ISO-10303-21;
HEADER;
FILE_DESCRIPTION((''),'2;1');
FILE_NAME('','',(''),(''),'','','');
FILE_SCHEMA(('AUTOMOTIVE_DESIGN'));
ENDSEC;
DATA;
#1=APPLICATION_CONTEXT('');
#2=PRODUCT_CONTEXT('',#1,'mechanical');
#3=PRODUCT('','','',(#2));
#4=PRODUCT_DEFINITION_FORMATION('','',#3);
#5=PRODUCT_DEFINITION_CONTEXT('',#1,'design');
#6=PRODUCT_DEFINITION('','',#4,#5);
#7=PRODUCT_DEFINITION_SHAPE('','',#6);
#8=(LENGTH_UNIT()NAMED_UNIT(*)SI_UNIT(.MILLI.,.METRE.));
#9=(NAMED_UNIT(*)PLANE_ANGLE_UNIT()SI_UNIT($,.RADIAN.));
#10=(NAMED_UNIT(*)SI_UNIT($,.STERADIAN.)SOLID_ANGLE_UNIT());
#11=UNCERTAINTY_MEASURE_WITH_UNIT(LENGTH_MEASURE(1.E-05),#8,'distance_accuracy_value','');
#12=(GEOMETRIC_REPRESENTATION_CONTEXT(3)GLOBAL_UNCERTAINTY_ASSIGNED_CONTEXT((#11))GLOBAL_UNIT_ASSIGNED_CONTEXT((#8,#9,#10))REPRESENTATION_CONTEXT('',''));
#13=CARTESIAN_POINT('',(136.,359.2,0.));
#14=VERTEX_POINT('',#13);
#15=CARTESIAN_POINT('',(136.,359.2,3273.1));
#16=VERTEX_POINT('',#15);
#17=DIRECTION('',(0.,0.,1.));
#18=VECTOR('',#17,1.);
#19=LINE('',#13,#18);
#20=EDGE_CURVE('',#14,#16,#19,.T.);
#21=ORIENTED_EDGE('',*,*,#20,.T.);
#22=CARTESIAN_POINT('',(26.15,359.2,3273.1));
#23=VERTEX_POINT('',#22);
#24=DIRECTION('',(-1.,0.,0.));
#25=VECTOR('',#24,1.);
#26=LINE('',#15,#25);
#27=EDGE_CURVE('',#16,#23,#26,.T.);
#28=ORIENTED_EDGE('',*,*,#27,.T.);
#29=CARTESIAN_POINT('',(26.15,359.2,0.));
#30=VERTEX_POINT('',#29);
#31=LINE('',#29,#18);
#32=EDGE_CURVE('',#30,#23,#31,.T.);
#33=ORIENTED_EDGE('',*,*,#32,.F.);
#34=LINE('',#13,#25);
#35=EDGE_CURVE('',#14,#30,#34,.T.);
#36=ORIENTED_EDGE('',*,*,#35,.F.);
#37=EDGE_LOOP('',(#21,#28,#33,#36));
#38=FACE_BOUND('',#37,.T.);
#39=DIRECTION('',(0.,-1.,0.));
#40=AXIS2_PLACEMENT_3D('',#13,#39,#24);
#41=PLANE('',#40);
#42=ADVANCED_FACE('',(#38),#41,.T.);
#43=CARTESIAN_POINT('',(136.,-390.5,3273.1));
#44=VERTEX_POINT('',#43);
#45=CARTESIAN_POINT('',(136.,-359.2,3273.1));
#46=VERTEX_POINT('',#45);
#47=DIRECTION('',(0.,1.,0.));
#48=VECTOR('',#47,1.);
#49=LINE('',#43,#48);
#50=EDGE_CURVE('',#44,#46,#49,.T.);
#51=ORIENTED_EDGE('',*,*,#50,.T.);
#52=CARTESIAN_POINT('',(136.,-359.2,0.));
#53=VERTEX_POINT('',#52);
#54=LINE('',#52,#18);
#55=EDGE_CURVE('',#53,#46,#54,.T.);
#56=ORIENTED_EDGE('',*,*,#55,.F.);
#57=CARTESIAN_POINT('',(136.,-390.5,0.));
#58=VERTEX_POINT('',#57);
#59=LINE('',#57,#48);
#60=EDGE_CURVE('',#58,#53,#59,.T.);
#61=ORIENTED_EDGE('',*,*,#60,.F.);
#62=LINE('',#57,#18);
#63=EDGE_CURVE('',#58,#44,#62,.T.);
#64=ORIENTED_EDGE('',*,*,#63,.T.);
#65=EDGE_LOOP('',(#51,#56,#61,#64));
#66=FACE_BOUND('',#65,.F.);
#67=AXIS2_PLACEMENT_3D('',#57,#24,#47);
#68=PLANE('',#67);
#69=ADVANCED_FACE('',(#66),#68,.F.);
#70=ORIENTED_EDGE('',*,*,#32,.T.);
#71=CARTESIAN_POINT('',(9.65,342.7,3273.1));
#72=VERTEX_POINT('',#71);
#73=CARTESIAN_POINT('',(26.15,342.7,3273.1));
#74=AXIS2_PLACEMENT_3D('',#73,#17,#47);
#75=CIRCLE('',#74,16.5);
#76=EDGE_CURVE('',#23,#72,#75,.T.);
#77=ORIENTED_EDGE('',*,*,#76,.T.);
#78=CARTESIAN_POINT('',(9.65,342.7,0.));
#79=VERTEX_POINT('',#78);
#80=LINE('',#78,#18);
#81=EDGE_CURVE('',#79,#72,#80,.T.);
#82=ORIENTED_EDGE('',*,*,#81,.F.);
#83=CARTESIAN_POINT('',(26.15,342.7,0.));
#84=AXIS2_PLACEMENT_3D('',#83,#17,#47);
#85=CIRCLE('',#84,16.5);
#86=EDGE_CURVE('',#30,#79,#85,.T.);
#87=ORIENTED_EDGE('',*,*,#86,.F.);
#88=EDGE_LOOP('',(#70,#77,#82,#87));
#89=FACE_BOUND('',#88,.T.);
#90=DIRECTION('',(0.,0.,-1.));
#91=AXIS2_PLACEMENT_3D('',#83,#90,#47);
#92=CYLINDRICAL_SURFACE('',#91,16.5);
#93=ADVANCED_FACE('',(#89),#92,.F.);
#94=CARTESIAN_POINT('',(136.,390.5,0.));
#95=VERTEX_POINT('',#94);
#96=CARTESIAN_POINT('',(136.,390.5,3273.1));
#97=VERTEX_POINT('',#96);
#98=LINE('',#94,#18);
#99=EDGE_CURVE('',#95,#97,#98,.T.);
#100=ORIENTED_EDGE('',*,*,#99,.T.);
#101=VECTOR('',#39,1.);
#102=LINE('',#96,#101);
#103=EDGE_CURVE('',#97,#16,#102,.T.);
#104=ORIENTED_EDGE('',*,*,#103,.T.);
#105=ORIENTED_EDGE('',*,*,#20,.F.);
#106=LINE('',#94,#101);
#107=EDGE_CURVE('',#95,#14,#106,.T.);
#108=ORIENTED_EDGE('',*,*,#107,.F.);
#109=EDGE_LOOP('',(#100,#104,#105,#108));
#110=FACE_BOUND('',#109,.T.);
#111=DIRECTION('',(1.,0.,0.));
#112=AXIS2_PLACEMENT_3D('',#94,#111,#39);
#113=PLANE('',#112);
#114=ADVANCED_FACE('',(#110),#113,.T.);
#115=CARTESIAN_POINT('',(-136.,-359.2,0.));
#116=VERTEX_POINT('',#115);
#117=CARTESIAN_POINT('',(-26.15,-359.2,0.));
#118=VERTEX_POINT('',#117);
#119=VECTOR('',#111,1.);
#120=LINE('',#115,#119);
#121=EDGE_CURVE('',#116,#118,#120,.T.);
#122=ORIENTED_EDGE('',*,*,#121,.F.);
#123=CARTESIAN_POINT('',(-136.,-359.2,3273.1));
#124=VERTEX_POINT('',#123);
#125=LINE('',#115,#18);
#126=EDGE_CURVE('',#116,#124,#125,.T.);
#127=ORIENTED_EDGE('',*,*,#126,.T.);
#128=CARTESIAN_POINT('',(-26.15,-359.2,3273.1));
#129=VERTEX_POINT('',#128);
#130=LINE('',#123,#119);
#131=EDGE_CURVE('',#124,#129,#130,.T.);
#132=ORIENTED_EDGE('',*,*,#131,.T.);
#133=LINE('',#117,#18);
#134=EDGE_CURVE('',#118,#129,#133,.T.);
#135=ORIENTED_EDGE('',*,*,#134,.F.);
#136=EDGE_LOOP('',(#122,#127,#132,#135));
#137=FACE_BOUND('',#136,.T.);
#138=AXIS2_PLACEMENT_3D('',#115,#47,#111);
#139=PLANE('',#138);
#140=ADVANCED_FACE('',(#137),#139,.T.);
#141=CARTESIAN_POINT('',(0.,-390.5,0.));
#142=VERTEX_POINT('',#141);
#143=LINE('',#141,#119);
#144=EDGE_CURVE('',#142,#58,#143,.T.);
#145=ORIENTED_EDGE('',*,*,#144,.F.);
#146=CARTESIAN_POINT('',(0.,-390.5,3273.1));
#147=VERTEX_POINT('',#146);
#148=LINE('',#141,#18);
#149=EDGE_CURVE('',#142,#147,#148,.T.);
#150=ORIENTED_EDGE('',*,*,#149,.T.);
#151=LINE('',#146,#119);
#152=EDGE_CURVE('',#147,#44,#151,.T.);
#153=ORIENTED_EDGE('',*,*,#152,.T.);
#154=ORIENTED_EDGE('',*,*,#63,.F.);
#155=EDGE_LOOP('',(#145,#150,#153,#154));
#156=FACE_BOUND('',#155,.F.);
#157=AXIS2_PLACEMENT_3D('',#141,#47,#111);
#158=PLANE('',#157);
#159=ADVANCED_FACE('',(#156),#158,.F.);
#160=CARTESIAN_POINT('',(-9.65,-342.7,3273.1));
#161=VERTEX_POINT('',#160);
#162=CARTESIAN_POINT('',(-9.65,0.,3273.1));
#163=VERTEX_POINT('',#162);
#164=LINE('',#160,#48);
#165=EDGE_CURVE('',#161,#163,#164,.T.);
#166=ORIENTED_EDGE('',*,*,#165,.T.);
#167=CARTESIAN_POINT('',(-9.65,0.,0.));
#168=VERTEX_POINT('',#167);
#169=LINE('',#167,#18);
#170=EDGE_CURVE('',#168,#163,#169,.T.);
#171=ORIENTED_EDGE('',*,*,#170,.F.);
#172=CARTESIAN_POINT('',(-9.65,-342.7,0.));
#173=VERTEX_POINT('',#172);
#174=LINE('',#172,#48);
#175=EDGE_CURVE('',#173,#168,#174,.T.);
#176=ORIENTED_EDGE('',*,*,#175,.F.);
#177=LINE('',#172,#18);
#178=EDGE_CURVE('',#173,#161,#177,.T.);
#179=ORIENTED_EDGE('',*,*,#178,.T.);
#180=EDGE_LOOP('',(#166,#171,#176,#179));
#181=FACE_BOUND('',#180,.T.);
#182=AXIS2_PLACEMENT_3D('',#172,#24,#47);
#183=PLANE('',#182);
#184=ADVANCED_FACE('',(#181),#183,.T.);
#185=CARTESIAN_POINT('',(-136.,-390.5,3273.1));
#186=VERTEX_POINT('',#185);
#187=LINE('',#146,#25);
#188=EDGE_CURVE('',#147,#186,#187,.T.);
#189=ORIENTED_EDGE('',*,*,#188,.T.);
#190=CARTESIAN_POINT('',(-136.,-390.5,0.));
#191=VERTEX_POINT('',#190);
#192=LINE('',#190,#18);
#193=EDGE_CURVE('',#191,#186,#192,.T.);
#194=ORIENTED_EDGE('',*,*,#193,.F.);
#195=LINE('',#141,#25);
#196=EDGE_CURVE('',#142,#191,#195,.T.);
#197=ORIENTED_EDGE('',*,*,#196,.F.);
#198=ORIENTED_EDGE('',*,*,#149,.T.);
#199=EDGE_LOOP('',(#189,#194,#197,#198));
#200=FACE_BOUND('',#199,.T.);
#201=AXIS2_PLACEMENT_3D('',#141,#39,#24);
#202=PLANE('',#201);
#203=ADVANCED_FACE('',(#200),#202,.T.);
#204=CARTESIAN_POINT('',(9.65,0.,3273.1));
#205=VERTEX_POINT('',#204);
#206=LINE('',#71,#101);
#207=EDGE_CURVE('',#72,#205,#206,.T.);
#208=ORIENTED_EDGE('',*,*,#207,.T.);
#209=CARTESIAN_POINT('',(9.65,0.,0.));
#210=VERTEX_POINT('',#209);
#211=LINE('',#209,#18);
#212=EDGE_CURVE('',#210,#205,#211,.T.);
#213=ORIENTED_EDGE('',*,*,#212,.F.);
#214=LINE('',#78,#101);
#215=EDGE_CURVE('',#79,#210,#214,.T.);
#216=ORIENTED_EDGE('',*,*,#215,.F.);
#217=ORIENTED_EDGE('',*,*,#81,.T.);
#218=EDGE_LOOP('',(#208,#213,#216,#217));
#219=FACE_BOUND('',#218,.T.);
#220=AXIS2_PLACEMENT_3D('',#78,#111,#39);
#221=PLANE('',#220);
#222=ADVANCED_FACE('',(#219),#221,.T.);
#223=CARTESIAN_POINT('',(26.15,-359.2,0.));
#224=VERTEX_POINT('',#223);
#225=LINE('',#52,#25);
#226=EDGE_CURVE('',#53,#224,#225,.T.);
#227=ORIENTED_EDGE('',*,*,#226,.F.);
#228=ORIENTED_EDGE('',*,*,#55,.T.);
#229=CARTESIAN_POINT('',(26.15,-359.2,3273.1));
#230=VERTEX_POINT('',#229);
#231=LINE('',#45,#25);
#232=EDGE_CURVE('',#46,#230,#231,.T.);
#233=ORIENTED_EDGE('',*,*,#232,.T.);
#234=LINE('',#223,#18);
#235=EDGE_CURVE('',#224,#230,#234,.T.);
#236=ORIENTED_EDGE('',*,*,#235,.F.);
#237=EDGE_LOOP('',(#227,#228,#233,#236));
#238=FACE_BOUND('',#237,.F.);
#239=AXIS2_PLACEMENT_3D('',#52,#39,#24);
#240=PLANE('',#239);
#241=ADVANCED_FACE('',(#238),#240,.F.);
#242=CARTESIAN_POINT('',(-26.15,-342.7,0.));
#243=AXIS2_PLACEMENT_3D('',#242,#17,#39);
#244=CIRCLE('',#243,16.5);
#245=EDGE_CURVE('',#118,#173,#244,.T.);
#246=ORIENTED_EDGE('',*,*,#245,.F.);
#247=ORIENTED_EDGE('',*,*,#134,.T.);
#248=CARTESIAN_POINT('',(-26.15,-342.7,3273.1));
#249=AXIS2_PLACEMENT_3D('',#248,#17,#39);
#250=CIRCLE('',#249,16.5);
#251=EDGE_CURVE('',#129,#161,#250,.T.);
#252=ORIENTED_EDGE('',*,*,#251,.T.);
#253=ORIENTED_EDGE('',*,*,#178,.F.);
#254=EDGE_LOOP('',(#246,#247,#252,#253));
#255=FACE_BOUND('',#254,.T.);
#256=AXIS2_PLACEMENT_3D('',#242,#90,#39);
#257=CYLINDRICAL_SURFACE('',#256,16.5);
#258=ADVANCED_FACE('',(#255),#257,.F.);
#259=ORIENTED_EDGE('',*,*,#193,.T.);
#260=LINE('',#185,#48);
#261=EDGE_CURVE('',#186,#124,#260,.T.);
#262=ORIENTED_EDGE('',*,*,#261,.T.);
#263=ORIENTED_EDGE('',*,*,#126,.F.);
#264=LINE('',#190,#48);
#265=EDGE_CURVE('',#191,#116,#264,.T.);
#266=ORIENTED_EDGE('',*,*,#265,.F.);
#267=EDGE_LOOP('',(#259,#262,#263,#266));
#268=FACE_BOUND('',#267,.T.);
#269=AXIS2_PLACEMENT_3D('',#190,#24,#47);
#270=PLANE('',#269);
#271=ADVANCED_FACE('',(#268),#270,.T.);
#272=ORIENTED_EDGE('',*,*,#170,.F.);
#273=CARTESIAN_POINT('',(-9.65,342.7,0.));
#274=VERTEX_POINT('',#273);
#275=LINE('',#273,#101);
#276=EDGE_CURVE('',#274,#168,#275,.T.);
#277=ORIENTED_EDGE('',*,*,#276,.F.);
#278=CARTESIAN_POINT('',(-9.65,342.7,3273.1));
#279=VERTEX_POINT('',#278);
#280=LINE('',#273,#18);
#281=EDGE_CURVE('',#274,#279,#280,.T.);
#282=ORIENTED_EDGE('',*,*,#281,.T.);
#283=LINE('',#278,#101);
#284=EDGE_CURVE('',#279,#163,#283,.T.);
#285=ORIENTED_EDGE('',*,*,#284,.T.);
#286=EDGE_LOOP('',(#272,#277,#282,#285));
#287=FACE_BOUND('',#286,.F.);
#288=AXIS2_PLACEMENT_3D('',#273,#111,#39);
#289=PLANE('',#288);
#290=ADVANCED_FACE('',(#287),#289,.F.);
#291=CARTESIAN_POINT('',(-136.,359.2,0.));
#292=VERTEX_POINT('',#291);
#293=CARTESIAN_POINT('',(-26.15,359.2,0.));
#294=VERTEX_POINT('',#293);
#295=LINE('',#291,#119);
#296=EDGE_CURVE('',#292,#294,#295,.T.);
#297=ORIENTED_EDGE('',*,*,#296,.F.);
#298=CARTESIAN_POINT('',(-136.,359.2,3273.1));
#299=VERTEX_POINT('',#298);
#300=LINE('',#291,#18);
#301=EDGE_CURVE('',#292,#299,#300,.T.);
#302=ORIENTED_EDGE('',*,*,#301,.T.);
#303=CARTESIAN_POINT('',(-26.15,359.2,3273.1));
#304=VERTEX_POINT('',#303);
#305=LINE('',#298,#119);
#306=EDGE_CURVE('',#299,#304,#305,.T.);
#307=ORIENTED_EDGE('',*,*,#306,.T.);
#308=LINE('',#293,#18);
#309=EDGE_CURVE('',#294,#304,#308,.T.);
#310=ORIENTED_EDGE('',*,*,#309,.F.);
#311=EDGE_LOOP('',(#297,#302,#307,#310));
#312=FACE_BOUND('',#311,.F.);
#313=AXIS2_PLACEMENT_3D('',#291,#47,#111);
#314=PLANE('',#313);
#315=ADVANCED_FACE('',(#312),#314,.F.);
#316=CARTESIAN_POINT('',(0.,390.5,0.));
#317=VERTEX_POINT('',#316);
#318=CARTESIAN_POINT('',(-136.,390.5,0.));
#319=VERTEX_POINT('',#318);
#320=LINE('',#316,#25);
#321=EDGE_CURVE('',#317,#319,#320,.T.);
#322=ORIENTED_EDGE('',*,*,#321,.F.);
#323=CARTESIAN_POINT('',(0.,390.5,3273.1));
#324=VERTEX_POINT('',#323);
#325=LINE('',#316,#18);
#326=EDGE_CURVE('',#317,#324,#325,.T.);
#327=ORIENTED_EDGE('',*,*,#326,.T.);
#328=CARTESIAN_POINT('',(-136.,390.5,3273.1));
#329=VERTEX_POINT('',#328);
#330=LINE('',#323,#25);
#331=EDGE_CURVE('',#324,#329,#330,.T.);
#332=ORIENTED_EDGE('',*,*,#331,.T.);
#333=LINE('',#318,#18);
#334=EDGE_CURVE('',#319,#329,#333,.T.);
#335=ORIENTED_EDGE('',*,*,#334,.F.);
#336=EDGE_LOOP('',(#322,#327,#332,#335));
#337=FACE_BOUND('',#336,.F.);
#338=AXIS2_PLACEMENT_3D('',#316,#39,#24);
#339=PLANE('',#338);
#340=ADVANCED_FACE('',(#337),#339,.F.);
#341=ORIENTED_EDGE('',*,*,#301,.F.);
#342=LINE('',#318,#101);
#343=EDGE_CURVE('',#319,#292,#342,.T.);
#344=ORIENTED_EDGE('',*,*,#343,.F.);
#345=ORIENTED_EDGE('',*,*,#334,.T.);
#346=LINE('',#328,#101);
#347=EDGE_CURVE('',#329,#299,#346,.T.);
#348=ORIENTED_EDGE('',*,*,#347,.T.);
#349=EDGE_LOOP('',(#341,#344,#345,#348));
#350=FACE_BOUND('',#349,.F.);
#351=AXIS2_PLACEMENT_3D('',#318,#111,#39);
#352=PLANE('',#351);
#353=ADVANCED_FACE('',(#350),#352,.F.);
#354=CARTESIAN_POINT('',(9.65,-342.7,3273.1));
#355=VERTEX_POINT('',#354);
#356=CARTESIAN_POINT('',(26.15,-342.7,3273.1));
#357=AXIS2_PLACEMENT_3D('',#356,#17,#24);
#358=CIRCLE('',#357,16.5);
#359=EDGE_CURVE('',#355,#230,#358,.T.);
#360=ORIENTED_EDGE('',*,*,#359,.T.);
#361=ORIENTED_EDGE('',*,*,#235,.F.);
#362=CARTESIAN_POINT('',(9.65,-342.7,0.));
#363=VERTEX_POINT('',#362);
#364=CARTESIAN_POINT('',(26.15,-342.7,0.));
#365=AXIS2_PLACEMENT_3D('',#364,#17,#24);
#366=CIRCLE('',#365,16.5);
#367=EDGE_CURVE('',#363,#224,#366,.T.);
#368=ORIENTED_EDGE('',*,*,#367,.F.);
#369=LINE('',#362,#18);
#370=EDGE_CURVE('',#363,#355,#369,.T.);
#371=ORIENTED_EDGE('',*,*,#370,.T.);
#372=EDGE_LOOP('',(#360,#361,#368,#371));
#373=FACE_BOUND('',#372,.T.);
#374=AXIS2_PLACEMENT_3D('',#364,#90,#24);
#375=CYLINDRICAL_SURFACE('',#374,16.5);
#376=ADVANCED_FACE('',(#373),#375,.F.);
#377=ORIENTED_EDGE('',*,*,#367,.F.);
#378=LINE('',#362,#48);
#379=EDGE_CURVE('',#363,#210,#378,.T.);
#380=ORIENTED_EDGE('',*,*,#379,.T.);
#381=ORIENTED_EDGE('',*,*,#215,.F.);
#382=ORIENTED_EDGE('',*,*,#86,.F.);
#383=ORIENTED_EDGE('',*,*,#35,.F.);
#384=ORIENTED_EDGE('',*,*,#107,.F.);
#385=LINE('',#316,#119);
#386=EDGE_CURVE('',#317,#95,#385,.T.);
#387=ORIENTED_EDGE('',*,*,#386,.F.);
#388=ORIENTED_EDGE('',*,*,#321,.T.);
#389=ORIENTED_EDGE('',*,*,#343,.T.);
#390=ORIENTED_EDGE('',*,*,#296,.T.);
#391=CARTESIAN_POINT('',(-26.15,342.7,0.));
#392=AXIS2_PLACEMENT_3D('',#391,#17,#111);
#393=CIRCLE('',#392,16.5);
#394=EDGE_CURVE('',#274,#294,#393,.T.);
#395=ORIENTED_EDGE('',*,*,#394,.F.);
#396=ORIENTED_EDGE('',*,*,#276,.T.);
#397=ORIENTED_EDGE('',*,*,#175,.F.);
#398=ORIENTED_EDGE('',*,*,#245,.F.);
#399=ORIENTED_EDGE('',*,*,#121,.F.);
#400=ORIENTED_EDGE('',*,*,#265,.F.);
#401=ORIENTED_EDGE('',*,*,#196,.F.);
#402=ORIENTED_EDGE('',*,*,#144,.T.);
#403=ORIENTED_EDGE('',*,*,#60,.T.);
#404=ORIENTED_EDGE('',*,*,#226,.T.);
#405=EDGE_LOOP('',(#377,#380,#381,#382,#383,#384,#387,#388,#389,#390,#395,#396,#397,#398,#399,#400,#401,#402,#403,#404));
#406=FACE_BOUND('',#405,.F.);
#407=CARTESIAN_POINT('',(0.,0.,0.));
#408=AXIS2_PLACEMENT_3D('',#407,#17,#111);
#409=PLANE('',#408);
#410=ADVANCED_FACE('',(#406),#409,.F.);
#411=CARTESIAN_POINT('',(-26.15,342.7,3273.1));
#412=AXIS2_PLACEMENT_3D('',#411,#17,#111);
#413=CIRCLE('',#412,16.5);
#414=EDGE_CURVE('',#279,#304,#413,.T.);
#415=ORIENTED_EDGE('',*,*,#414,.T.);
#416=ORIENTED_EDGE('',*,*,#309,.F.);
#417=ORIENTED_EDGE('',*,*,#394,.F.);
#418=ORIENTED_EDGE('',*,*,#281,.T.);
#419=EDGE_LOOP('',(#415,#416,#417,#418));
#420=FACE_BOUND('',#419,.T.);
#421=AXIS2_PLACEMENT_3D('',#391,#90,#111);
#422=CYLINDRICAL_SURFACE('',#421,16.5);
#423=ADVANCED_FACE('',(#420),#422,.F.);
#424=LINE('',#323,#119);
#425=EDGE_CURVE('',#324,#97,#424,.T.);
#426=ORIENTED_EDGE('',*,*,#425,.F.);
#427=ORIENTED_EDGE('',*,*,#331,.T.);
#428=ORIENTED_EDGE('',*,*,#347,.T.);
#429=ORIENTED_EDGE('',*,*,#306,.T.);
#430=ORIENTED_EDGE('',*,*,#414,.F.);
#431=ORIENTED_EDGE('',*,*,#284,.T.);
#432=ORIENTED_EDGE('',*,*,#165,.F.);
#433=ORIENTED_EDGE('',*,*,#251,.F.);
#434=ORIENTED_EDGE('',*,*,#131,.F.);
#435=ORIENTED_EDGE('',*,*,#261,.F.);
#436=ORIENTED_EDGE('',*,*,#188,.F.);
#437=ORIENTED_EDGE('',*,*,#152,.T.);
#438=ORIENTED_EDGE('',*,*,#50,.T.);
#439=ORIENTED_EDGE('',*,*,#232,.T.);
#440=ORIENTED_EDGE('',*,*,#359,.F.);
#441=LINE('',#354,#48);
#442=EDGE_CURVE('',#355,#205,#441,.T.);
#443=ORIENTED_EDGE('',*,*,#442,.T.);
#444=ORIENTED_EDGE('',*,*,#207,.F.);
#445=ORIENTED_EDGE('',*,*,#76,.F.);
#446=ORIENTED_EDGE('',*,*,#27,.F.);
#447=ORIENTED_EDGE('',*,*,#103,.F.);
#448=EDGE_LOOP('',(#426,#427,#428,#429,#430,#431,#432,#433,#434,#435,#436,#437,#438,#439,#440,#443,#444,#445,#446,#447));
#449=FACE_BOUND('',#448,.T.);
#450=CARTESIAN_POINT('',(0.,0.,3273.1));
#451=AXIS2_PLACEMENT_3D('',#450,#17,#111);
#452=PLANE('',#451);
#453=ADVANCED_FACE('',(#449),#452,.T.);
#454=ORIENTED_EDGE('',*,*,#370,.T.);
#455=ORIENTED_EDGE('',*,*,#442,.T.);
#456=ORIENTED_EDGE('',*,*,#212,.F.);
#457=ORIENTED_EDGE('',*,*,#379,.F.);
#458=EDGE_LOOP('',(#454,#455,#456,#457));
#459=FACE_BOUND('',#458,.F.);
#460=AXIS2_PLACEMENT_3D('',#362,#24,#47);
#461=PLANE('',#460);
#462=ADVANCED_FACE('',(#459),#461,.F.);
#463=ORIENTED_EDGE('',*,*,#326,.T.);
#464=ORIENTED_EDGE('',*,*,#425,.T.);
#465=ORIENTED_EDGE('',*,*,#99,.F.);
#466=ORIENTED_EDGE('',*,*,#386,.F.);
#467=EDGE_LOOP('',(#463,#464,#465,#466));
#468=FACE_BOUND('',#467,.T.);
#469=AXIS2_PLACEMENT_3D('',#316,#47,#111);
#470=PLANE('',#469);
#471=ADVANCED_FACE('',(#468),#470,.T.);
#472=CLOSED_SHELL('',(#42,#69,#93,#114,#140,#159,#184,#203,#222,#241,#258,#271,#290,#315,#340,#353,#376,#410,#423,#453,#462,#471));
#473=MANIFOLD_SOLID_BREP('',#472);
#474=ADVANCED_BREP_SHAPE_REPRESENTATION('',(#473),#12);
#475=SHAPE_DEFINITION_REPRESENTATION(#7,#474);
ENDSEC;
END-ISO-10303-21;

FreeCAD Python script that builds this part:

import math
import FreeCAD as App
import Part
import Sketcher
Q = App.Units.Quantity

doc = App.newDocument("Part")
body = doc.addObject("PartDesign::Body", "Body")

# Sketch on XY plane
sketch1 = body.newObject("Sketcher::SketchObject", "Sketch")
sketch1.AttachmentSupport = (doc.getObject("XY_Plane"), [""])
sketch1.MapMode = "FlatFace"
sketch1.addGeometry([
    Part.LineSegment(App.Vector(-136, -359, 0), App.Vector(-136, -390, 0)),  # 0
    Part.LineSegment(App.Vector(-136, -390, 0), App.Vector(136, -390, 0)),  # 1
    Part.LineSegment(App.Vector(136, -390, 0), App.Vector(136, -359, 0)),  # 2
    Part.LineSegment(App.Vector(136, -359, 0), App.Vector(26, -359, 0)),  # 3
    Part.ArcOfCircle(Part.Circle(App.Vector(26, -343, 0), App.Vector(0, 0, 1), 16), math.radians(180), math.radians(270)),  # 4
    Part.LineSegment(App.Vector(10, -343, 0), App.Vector(10, 343, 0)),  # 5
    Part.ArcOfCircle(Part.Circle(App.Vector(26, 343, 0), App.Vector(0, 0, 1), 16), math.radians(90), math.radians(180)),  # 6
    Part.LineSegment(App.Vector(26, 359, 0), App.Vector(136, 359, 0)),  # 7
    Part.LineSegment(App.Vector(136, 359, 0), App.Vector(136, 390, 0)),  # 8
    Part.LineSegment(App.Vector(136, 390, 0), App.Vector(-136, 390, 0)),  # 9
    Part.LineSegment(App.Vector(-136, 390, 0), App.Vector(-136, 359, 0)),  # 10
    Part.LineSegment(App.Vector(-136, 359, 0), App.Vector(-26, 359, 0)),  # 11
    Part.ArcOfCircle(Part.Circle(App.Vector(-26, 343, 0), App.Vector(0, 0, 1), 16), math.radians(0), math.radians(90)),  # 12
    Part.LineSegment(App.Vector(-10, 343, 0), App.Vector(-10, -343, 0)),  # 13
    Part.ArcOfCircle(Part.Circle(App.Vector(-26, -343, 0), App.Vector(0, 0, 1), 16), math.radians(-90), math.radians(0)),  # 14
    Part.LineSegment(App.Vector(-26, -359, 0), App.Vector(-136, -359, 0)),  # 15
], False)
sketch1.addConstraint([
    Sketcher.Constraint("Coincident", 0, 2, 1, 1),
    Sketcher.Constraint("Coincident", 1, 2, 2, 1),
    Sketcher.Constraint("Coincident", 2, 2, 3, 1),
    Sketcher.Constraint("Tangent", 3, 2, 4, 2),
    Sketcher.Constraint("Tangent", 4, 1, 5, 1),
    Sketcher.Constraint("Tangent", 5, 2, 6, 2),
    Sketcher.Constraint("Tangent", 6, 1, 7, 1),
    Sketcher.Constraint("Coincident", 7, 2, 8, 1),
    Sketcher.Constraint("Coincident", 8, 2, 9, 1),
    Sketcher.Constraint("Coincident", 9, 2, 10, 1),
    Sketcher.Constraint("Coincident", 10, 2, 11, 1),
    Sketcher.Constraint("Tangent", 11, 2, 12, 2),
    Sketcher.Constraint("Tangent", 12, 1, 13, 1),
    Sketcher.Constraint("Tangent", 13, 2, 14, 2),
    Sketcher.Constraint("Tangent", 14, 1, 15, 1),
    Sketcher.Constraint("Coincident", 15, 2, 0, 1),
    Sketcher.Constraint("Vertical", 0),
    Sketcher.Constraint("Horizontal", 1),
    Sketcher.Constraint("Vertical", 2),
    Sketcher.Constraint("Horizontal", 3),
    Sketcher.Constraint("Vertical", 5),
    Sketcher.Constraint("Horizontal", 7),
    Sketcher.Constraint("Vertical", 8),
    Sketcher.Constraint("Horizontal", 9),
    Sketcher.Constraint("Vertical", 10),
    Sketcher.Constraint("Horizontal", 11),
    Sketcher.Constraint("Vertical", 13),
    Sketcher.Constraint("Horizontal", 15),
    Sketcher.Constraint("Equal", 4, 6),
    Sketcher.Constraint("Equal", 6, 12),
    Sketcher.Constraint("Equal", 12, 14),
    Sketcher.Constraint("Symmetric", 4, 3, 12, 3, -1, 1),
    Sketcher.Constraint("Symmetric", 0, 2, 8, 2, -1, 1),
    Sketcher.Constraint("Symmetric", 7, 2, 10, 2, -2),
    Sketcher.Constraint("Symmetric", 2, 2, 15, 2, -2),
    Sketcher.Constraint("Radius", 4, Q("16.5 mm")),
    Sketcher.Constraint("DistanceY", 0, 2, 0, 1, Q("31.3 mm")),
    Sketcher.Constraint("DistanceX", 0, 2, -1, 1, Q("136 mm")),
    Sketcher.Constraint("DistanceY", 0, 2, -1, 1, Q("390.5 mm")),
    Sketcher.Constraint("DistanceX", -1, 1, 4, 1, Q("9.65 mm")),
])
pad1 = body.newObject("PartDesign::Pad", "Pad")
pad1.Profile = sketch1
pad1.Length = 3273.1

doc.recompute()
